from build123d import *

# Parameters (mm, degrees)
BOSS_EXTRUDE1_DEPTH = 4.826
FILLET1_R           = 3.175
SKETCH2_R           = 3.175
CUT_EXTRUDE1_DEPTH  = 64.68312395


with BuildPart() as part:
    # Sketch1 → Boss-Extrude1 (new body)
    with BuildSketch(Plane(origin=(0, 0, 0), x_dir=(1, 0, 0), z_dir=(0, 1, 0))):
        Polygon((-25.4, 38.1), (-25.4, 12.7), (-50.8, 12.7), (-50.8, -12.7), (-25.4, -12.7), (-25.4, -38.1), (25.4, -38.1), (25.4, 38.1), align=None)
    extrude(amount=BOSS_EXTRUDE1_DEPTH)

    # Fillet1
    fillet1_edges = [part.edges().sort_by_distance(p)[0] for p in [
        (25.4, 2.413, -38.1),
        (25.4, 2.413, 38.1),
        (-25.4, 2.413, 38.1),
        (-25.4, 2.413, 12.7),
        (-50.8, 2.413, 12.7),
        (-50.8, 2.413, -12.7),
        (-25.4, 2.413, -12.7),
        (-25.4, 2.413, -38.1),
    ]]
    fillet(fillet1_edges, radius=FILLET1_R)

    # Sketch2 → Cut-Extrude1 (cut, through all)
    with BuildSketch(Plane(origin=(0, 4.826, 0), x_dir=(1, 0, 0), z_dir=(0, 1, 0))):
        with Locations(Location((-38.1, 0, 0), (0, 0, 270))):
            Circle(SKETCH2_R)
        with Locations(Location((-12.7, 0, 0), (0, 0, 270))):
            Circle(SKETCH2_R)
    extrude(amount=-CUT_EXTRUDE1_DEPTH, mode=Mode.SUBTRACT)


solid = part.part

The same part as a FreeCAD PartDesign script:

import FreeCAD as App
import Part
import Sketcher

V = App.Vector
Q = App.Units.Quantity


def edges_at(feature, points):
    """Names of the edges that pass closest to the given points."""
    edges = feature.Shape.Edges
    near = lambda p: min(range(len(edges)), key=lambda i: edges[i].distToShape(Part.Vertex(*p))[0])
    return sorted({f"Edge{near(p) + 1}" for p in points})


def add_polygon(sketch, points):
    """Adds a closed chain of lines whose ends are joined by coincident constraints."""
    first, n = sketch.GeometryCount, len(points)
    for a, b in zip(points, points[1:] + points[:1]):
        sketch.addGeometry(Part.LineSegment(App.Vector(*a, 0), App.Vector(*b, 0)), False)
    for i in range(n):
        sketch.addConstraint(Sketcher.Constraint("Coincident", first + i, 2, first + (i + 1) % n, 1))

doc = App.newDocument("Part")
body = doc.addObject("PartDesign::Body", "Body")

sketch1 = body.newObject("Sketcher::SketchObject", "Sketch")
sketch1.AttachmentSupport = (doc.getObject("XZ_Plane"), [""])
sketch1.MapMode = "FlatFace"
add_polygon(sketch1, [(-25, -38), (-25, -13), (-51, -13), (-51, 13), (-25, 13), (-25, 38), (25, 38), (25, -38)])
sketch1.addConstraint([
    Sketcher.Constraint("Vertical", 0),
    Sketcher.Constraint("Horizontal", 1),
    Sketcher.Constraint("Vertical", 2),
    Sketcher.Constraint("Horizontal", 3),
    Sketcher.Constraint("Vertical", 4),
    Sketcher.Constraint("Horizontal", 5),
    Sketcher.Constraint("Vertical", 6),
    Sketcher.Constraint("Horizontal", 7),
    Sketcher.Constraint("Symmetric", 4, 2, 6, 2, -1, 1),
    Sketcher.Constraint("Symmetric", 0, 2, 3, 2, -1),
    Sketcher.Constraint("Equal", 3, 0),
    Sketcher.Constraint("Equal", 0, 2),
    Sketcher.Constraint("DistanceX", 1, 2, 1, 1, Q("1 in")),
    Sketcher.Constraint("DistanceX", 5, 1, 5, 2, Q("2 in")),
])
pad1 = body.newObject("PartDesign::Pad", "Pad")
pad1.Profile = sketch1
pad1.Length = Q("0.19 in")
pad1.Reversed = True
doc.recompute()

fillet = body.newObject("PartDesign::Fillet", "Fillet")
fillet.Base = (pad1, edges_at(pad1, [
    (25.4, 2.413, -38.1),
    (25.4, 2.413, 38.1),
    (-25.4, 2.413, 38.1),
    (-25.4, 2.413, 12.7),
    (-50.8, 2.413, 12.7),
    (-50.8, 2.413, -12.7),
    (-25.4, 2.413, -12.7),
    (-25.4, 2.413, -38.1),
]))
fillet.Radius = Q("0.125 in")

sketch2 = body.newObject("Sketcher::SketchObject", "Sketch001")
sketch2.AttachmentSupport = (doc.getObject("XZ_Plane"), [""])
sketch2.MapMode = "FlatFace"
sketch2.AttachmentOffset = App.Placement(V(0, 0, -0.19 * 25.4), App.Rotation())
sketch2.addGeometry([
    Part.Circle(V(-38.1, 0, 0), V(0, 0, 1), 3.2),
    Part.Circle(V(-12.7, 0, 0), V(0, 0, 1), 3.2),
], False)
sketch2.addConstraint([
    Sketcher.Constraint("Equal", 0, 1),
    Sketcher.Constraint("PointOnObject", 0, 3, -1),
    Sketcher.Constraint("PointOnObject", 1, 3, -1),
    Sketcher.Constraint("Diameter", 0, Q("0.25 in")),
    Sketcher.Constraint("DistanceX", 0, 3, 1, 3, Q("1 in")),
    Sketcher.Constraint("DistanceX", 0, 3, -1, 1, Q("1.5 in")),
])
pocket1 = body.newObject("PartDesign::Pocket", "Pocket")
pocket1.Profile = sketch2
pocket1.Type = "ThroughAll"
pocket1.Reversed = True

doc.recompute()
